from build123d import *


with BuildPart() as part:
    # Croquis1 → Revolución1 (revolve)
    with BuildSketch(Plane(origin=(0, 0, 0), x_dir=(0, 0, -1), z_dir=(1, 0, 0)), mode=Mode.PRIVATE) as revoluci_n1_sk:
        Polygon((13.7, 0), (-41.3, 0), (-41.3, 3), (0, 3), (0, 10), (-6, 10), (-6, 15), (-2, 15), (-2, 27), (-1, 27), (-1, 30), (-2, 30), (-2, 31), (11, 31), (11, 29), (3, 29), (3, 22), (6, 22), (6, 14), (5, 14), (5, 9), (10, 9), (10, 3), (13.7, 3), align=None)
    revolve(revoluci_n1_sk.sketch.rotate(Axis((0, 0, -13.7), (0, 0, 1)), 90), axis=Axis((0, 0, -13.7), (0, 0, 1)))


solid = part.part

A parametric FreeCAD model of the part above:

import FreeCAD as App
import Part
import Sketcher
Q = App.Units.Quantity

doc = App.newDocument("Part")
body = doc.addObject("PartDesign::Body", "Body")

# Sketch on YZ plane
sketch1 = body.newObject("Sketcher::SketchObject", "Sketch")
sketch1.AttachmentSupport = (doc.getObject("YZ_Plane"), [""])
sketch1.MapMode = "FlatFace"
sketch1.addGeometry([
    Part.LineSegment(App.Vector(0, 41.3, 0), App.Vector(0, -13.7, 0)),  # 0
    Part.LineSegment(App.Vector(0, -13.7, 0), App.Vector(3, -13.7, 0)),  # 1
    Part.LineSegment(App.Vector(3, -13.7, 0), App.Vector(3, -10, 0)),  # 2
    Part.LineSegment(App.Vector(3, -10, 0), App.Vector(9, -10, 0)),  # 3
    Part.LineSegment(App.Vector(9, -10, 0), App.Vector(9, -5, 0)),  # 4
    Part.LineSegment(App.Vector(9, -5, 0), App.Vector(14, -5, 0)),  # 5
    Part.LineSegment(App.Vector(14, -5, 0), App.Vector(14, -6, 0)),  # 6
    Part.LineSegment(App.Vector(14, -6, 0), App.Vector(22, -6, 0)),  # 7
    Part.LineSegment(App.Vector(22, -6, 0), App.Vector(22, -3, 0)),  # 8
    Part.LineSegment(App.Vector(22, -3, 0), App.Vector(29, -3, 0)),  # 9
    Part.LineSegment(App.Vector(29, -3, 0), App.Vector(29, -11, 0)),  # 10
    Part.LineSegment(App.Vector(29, -11, 0), App.Vector(31, -11, 0)),  # 11
    Part.LineSegment(App.Vector(31, -11, 0), App.Vector(31, 2, 0)),  # 12
    Part.LineSegment(App.Vector(31, 2, 0), App.Vector(30, 2, 0)),  # 13
    Part.LineSegment(App.Vector(30, 2, 0), App.Vector(30, 1, 0)),  # 14
    Part.LineSegment(App.Vector(30, 1, 0), App.Vector(27, 1, 0)),  # 15
    Part.LineSegment(App.Vector(27, 1, 0), App.Vector(27, 2, 0)),  # 16
    Part.LineSegment(App.Vector(27, 2, 0), App.Vector(15, 2, 0)),  # 17
    Part.LineSegment(App.Vector(15, 2, 0), App.Vector(15, 6, 0)),  # 18
    Part.LineSegment(App.Vector(15, 6, 0), App.Vector(10, 6, 0)),  # 19
    Part.LineSegment(App.Vector(10, 6, 0), App.Vector(10, 0, 0)),  # 20
    Part.LineSegment(App.Vector(10, 0, 0), App.Vector(3, 0, 0)),  # 21
    Part.LineSegment(App.Vector(3, 0, 0), App.Vector(3, 41.3, 0)),  # 22
    Part.LineSegment(App.Vector(3, 41.3, 0), App.Vector(0, 41.3, 0)),  # 23
], False)
sketch1.addConstraint([
    Sketcher.Constraint("Coincident", 0, 2, 1, 1),
    Sketcher.Constraint("Coincident", 1, 2, 2, 1),
    Sketcher.Constraint("Coincident", 2, 2, 3, 1),
    Sketcher.Constraint("Coincident", 3, 2, 4, 1),
    Sketcher.Constraint("Coincident", 4, 2, 5, 1),
    Sketcher.Constraint("Coincident", 5, 2, 6, 1),
    Sketcher.Constraint("Coincident", 6, 2, 7, 1),
    Sketcher.Constraint("Coincident", 7, 2, 8, 1),
    Sketcher.Constraint("Coincident", 8, 2, 9, 1),
    Sketcher.Constraint("Coincident", 9, 2, 10, 1),
    Sketcher.Constraint("Coincident", 10, 2, 11, 1),
    Sketcher.Constraint("Coincident", 11, 2, 12, 1),
    Sketcher.Constraint("Coincident", 12, 2, 13, 1),
    Sketcher.Constraint("Coincident", 13, 2, 14, 1),
    Sketcher.Constraint("Coincident", 14, 2, 15, 1),
    Sketcher.Constraint("Coincident", 15, 2, 16, 1),
    Sketcher.Constraint("Coincident", 16, 2, 17, 1),
    Sketcher.Constraint("Coincident", 17, 2, 18, 1),
    Sketcher.Constraint("Coincident", 18, 2, 19, 1),
    Sketcher.Constraint("Coincident", 19, 2, 20, 1),
    Sketcher.Constraint("Coincident", 20, 2, 21, 1),
    Sketcher.Constraint("Coincident", 21, 2, 22, 1),
    Sketcher.Constraint("Coincident", 22, 2, 23, 1),
    Sketcher.Constraint("Coincident", 23, 2, 0, 1),
    Sketcher.Constraint("Vertical", 0),
    Sketcher.Constraint("Horizontal", 1),
    Sketcher.Constraint("Vertical", 2),
    Sketcher.Constraint("Horizontal", 3),
    Sketcher.Constraint("Vertical", 4),
    Sketcher.Constraint("Horizontal", 5),
    Sketcher.Constraint("Vertical", 6),
    Sketcher.Constraint("Horizontal", 7),
    Sketcher.Constraint("Vertical", 8),
    Sketcher.Constraint("Horizontal", 9),
    Sketcher.Constraint("Vertical", 10),
    Sketcher.Constraint("Horizontal", 11),
    Sketcher.Constraint("Vertical", 12),
    Sketcher.Constraint("Horizontal", 13),
    Sketcher.Constraint("Vertical", 14),
    Sketcher.Constraint("Horizontal", 15),
    Sketcher.Constraint("Vertical", 16),
    Sketcher.Constraint("Horizontal", 17),
    Sketcher.Constraint("Vertical", 18),
    Sketcher.Constraint("Horizontal", 19),
    Sketcher.Constraint("Vertical", 20),
    Sketcher.Constraint("Horizontal", 21),
    Sketcher.Constraint("Vertical", 22),
    Sketcher.Constraint("Horizontal", 23),
    Sketcher.Constraint("PointOnObject", 0, 2, -2),
    Sketcher.Constraint("PointOnObject", 20, 2, -1),
    Sketcher.Constraint("Horizontal", 13, 2, 16, 2),
    Sketcher.Constraint("Vertical", 2, 2, 21, 2),
    Sketcher.Constraint("Equal", 1, 15),
    Sketcher.Constraint("Equal", 5, 19),
    Sketcher.Constraint("Equal", 9, 21),
    Sketcher.Constraint("Equal", 19, 4),
    Sketcher.Constraint("Equal", 13, 6),
    Sketcher.Constraint("Equal", 23, 8),
    Sketcher.Constraint("Equal", 7, 10),
    Sketcher.Constraint("Equal", 6, 14),
    Sketcher.Constraint("Equal", 3, 20),
    Sketcher.Constraint("DistanceX", 1, 1, 1, 2, Q("3 mm")),
    Sketcher.Constraint("DistanceX", 3, 1, 3, 2, Q("6 mm")),
    Sketcher.Constraint("DistanceX", 5, 1, 5, 2, Q("5 mm")),
    Sketcher.Constraint("DistanceX", 7, 1, 7, 2, Q("8 mm")),
    Sketcher.Constraint("DistanceX", 9, 1, 9, 2, Q("7 mm")),
    Sketcher.Constraint("DistanceX", 11, 1, 11, 2, Q("2 mm")),
    Sketcher.Constraint("DistanceX", 13, 2, 13, 1, Q("1 mm")),
    Sketcher.Constraint("DistanceY", 0, 2, 0, 1, Q("55 mm")),
    Sketcher.Constraint("DistanceY", 12, 1, 12, 2, Q("13 mm")),
    Sketcher.Constraint("DistanceY", 18, 1, 18, 2, Q("4 mm")),
    Sketcher.Constraint("DistanceY", 2, 1, 2, 2, Q("3.7 mm")),
])
revolution = body.newObject("PartDesign::Revolution", "Revolution")
revolution.Profile = sketch1
revolution.ReferenceAxis = (sketch1, ["V_Axis"])
revolution.Angle = 360

doc.recompute()
